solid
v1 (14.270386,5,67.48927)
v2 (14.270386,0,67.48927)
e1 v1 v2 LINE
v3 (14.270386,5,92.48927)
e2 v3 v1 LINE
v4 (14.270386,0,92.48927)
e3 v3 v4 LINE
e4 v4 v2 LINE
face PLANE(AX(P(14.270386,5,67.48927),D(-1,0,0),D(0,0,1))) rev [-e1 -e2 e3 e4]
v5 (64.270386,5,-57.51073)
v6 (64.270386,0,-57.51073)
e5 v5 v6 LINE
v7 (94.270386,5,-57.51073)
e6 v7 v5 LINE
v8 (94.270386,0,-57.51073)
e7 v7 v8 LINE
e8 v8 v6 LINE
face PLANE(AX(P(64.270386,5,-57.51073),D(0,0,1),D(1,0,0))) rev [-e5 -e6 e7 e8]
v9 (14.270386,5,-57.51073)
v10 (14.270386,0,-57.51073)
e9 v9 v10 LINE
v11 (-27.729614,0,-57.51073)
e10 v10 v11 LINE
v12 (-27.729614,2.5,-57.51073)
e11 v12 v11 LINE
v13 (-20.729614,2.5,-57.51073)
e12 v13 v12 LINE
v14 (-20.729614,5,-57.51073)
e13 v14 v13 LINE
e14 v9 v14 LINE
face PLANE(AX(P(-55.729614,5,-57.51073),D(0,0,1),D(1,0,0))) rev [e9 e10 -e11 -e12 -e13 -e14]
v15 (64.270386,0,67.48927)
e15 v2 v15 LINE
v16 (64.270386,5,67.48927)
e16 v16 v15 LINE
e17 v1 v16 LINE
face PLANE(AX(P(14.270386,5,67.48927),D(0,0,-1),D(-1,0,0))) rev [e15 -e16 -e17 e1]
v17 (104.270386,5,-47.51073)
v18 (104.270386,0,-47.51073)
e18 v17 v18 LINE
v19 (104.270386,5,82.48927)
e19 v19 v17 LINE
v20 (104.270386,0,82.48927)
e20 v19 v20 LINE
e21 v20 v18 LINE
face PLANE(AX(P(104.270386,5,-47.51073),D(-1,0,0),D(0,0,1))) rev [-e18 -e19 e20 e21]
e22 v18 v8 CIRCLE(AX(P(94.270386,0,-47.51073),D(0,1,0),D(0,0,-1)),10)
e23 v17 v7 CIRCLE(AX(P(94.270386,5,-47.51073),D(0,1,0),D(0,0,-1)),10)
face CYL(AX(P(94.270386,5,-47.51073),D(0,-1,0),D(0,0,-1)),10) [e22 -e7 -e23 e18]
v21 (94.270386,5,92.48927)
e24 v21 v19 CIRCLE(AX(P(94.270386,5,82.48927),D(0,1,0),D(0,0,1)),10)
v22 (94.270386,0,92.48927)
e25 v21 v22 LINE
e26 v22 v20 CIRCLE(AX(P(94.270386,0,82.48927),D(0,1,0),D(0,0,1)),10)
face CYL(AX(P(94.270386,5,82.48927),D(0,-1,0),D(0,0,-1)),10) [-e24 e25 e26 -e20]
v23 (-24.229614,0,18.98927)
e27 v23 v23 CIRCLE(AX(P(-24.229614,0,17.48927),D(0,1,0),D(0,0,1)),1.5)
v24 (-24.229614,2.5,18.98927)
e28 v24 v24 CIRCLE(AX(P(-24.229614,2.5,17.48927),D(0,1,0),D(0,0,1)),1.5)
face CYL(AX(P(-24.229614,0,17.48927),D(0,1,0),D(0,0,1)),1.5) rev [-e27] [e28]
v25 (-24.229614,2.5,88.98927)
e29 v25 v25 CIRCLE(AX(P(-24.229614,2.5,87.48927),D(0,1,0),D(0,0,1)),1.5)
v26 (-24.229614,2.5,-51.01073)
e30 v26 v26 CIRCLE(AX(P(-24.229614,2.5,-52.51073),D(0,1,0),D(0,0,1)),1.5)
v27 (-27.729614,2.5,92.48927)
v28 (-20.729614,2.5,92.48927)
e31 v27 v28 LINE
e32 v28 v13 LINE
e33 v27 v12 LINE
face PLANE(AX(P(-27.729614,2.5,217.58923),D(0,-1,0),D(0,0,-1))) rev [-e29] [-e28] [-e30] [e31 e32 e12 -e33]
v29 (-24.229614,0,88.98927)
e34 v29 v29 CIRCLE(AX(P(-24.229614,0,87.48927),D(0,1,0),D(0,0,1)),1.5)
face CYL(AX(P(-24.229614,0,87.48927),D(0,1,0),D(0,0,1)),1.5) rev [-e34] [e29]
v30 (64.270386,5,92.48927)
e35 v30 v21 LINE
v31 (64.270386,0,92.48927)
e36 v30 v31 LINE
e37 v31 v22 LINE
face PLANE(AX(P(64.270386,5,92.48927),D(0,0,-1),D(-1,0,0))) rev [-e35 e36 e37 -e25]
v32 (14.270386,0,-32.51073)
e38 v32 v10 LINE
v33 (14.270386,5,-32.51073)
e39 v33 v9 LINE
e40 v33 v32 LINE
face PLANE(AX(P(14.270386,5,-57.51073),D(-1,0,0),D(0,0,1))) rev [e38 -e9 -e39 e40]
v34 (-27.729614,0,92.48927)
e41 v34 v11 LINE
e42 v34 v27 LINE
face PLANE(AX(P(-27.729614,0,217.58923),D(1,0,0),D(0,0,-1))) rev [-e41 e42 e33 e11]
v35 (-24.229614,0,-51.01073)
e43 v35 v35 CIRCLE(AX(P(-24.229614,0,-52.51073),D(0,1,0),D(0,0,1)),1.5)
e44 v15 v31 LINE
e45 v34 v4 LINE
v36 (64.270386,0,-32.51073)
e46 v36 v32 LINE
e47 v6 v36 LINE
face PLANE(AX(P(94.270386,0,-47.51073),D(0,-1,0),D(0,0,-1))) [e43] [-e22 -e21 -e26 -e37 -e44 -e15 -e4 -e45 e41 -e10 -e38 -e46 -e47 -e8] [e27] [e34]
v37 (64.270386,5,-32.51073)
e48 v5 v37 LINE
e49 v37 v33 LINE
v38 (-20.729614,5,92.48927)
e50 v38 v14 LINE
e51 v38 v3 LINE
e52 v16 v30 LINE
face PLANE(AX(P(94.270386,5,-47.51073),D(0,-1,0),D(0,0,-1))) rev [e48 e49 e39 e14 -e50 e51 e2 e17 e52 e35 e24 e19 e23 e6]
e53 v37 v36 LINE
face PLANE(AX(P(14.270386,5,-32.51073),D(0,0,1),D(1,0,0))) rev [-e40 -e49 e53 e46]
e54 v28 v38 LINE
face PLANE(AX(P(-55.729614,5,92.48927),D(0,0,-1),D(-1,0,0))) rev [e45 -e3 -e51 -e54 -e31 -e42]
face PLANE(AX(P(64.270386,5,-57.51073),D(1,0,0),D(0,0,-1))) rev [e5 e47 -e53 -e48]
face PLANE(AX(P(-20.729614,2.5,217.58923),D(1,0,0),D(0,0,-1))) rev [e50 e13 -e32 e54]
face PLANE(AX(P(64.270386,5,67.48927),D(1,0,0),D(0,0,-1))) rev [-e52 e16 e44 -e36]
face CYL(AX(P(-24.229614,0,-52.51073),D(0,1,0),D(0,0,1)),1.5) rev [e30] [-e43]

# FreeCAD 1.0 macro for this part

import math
import FreeCAD as App
import Part
import Sketcher

V = App.Vector
Q = App.Units.Quantity


def add_polygon(sketch, points):
    """Adds a closed chain of lines whose ends are joined by coincident constraints."""
    first, n = sketch.GeometryCount, len(points)
    for a, b in zip(points, points[1:] + points[:1]):
        sketch.addGeometry(Part.LineSegment(App.Vector(*a, 0), App.Vector(*b, 0)), False)
    for i in range(n):
        sketch.addConstraint(Sketcher.Constraint("Coincident", first + i, 2, first + (i + 1) % n, 1))

doc = App.newDocument("Part")
body = doc.addObject("PartDesign::Body", "Body")

# Sketch on XZ plane
sketch1 = doc.addObject("Sketcher::SketchObject", "Sketch")
body.addObject(sketch1)
sketch1.AttachmentSupport = (doc.XZ_Plane, [""])
sketch1.MapMode = "FlatFace"
sketch1.addGeometry(Part.LineSegment(V(94, -58, 0), V(64, -58, 0)), False)
sketch1.addGeometry(Part.LineSegment(V(64, -58, 0), V(64, -33, 0)), False)
sketch1.addGeometry(Part.LineSegment(V(64, -33, 0), V(14, -33, 0)), False)
sketch1.addGeometry(Part.LineSegment(V(14, -33, 0), V(14, -58, 0)), False)
sketch1.addGeometry(Part.LineSegment(V(14, -58, 0), V(-56, -58, 0)), False)
sketch1.addGeometry(Part.LineSegment(V(-56, -58, 0), V(-56, -33, 0)), False)
sketch1.addGeometry(Part.LineSegment(V(-56, -33, 0), V(-106, -33, 0)), False)
sketch1.addGeometry(Part.LineSegment(V(-106, -33, 0), V(-106, -58, 0)), False)
sketch1.addGeometry(Part.LineSegment(V(-106, -58, 0), V(-136, -58, 0)), False)
sketch1.addGeometry(Part.ArcOfCircle(Part.Circle(V(-136, -48, 0), V(0, 0, 1), 10), math.radians(180), math.radians(270)), False)
sketch1.addGeometry(Part.LineSegment(V(-146, -48, 0), V(-146, 82, 0)), False)
sketch1.addGeometry(Part.ArcOfCircle(Part.Circle(V(-136, 82, 0), V(0, 0, 1), 10), math.radians(90), math.radians(180)), False)
sketch1.addGeometry(Part.LineSegment(V(-136, 92, 0), V(-106, 92, 0)), False)
sketch1.addGeometry(Part.LineSegment(V(-106, 92, 0), V(-106, 67, 0)), False)
sketch1.addGeometry(Part.LineSegment(V(-106, 67, 0), V(-56, 67, 0)), False)
sketch1.addGeometry(Part.LineSegment(V(-56, 67, 0), V(-56, 92, 0)), False)
sketch1.addGeometry(Part.LineSegment(V(-56, 92, 0), V(14, 92, 0)), False)
sketch1.addGeometry(Part.LineSegment(V(14, 92, 0), V(14, 67, 0)), False)
sketch1.addGeometry(Part.LineSegment(V(14, 67, 0), V(64, 67, 0)), False)
sketch1.addGeometry(Part.LineSegment(V(64, 67, 0), V(64, 92, 0)), False)
sketch1.addGeometry(Part.LineSegment(V(64, 92, 0), V(94, 92, 0)), False)
sketch1.addGeometry(Part.ArcOfCircle(Part.Circle(V(94, 82, 0), V(0, 0, 1), 10), math.radians(0), math.radians(90)), False)
sketch1.addGeometry(Part.LineSegment(V(104, 82, 0), V(104, -48, 0)), False)
sketch1.addGeometry(Part.ArcOfCircle(Part.Circle(V(94, -48, 0), V(0, 0, 1), 10), math.radians(-90), math.radians(0)), False)
sketch1.addConstraint(Sketcher.Constraint("Coincident", 0, 2, 1, 1))
sketch1.addConstraint(Sketcher.Constraint("Coincident", 1, 2, 2, 1))
sketch1.addConstraint(Sketcher.Constraint("Coincident", 2, 2, 3, 1))
sketch1.addConstraint(Sketcher.Constraint("Coincident", 3, 2, 4, 1))
sketch1.addConstraint(Sketcher.Constraint("Coincident", 4, 2, 5, 1))
sketch1.addConstraint(Sketcher.Constraint("Coincident", 5, 2, 6, 1))
sketch1.addConstraint(Sketcher.Constraint("Coincident", 6, 2, 7, 1))
sketch1.addConstraint(Sketcher.Constraint("Coincident", 7, 2, 8, 1))
sketch1.addConstraint(Sketcher.Constraint("Tangent", 8, 2, 9, 2))
sketch1.addConstraint(Sketcher.Constraint("Tangent", 9, 1, 10, 1))
sketch1.addConstraint(Sketcher.Constraint("Tangent", 10, 2, 11, 2))
sketch1.addConstraint(Sketcher.Constraint("Tangent", 11, 1, 12, 1))
sketch1.addConstraint(Sketcher.Constraint("Coincident", 12, 2, 13, 1))
sketch1.addConstraint(Sketcher.Constraint("Coincident", 13, 2, 14, 1))
sketch1.addConstraint(Sketcher.Constraint("Coincident", 14, 2, 15, 1))
sketch1.addConstraint(Sketcher.Constraint("Coincident", 15, 2, 16, 1))
sketch1.addConstraint(Sketcher.Constraint("Coincident", 16, 2, 17, 1))
sketch1.addConstraint(Sketcher.Constraint("Coincident", 17, 2, 18, 1))
sketch1.addConstraint(Sketcher.Constraint("Coincident", 18, 2, 19, 1))
sketch1.addConstraint(Sketcher.Constraint("Coincident", 19, 2, 20, 1))
sketch1.addConstraint(Sketcher.Constraint("Tangent", 20, 2, 21, 2))
sketch1.addConstraint(Sketcher.Constraint("Tangent", 21, 1, 22, 1))
sketch1.addConstraint(Sketcher.Constraint("Tangent", 22, 2, 23, 2))
sketch1.addConstraint(Sketcher.Constraint("Tangent", 23, 1, 0, 1))
sketch1.addConstraint(Sketcher.Constraint("Horizontal", 0))
sketch1.addConstraint(Sketcher.Constraint("Vertical", 1))
sketch1.addConstraint(Sketcher.Constraint("Horizontal", 2))
sketch1.addConstraint(Sketcher.Constraint("Vertical", 3))
sketch1.addConstraint(Sketcher.Constraint("Horizontal", 4))
sketch1.addConstraint(Sketcher.Constraint("Vertical", 5))
sketch1.addConstraint(Sketcher.Constraint("Horizontal", 6))
sketch1.addConstraint(Sketcher.Constraint("Vertical", 7))
sketch1.addConstraint(Sketcher.Constraint("Horizontal", 8))
sketch1.addConstraint(Sketcher.Constraint("Vertical", 10))
sketch1.addConstraint(Sketcher.Constraint("Horizontal", 12))
sketch1.addConstraint(Sketcher.Constraint("Vertical", 13))
sketch1.addConstraint(Sketcher.Constraint("Horizontal", 14))
sketch1.addConstraint(Sketcher.Constraint("Vertical", 15))
sketch1.addConstraint(Sketcher.Constraint("Horizontal", 16))
sketch1.addConstraint(Sketcher.Constraint("Vertical", 17))
sketch1.addConstraint(Sketcher.Constraint("Horizontal", 18))
sketch1.addConstraint(Sketcher.Constraint("Vertical", 19))
sketch1.addConstraint(Sketcher.Constraint("Horizontal", 20))
sketch1.addConstraint(Sketcher.Constraint("Vertical", 22))
sketch1.addConstraint(Sketcher.Constraint("Equal", 9, 11))
sketch1.addConstraint(Sketcher.Constraint("Equal", 11, 21))
sketch1.addConstraint(Sketcher.Constraint("Equal", 21, 23))
sketch1.addConstraint(Sketcher.Constraint("Horizontal", 11, 3, 21, 3))
sketch1.addConstraint(Sketcher.Constraint("Horizontal", 9, 3, 23, 3))
sketch1.addConstraint(Sketcher.Constraint("Horizontal", 0, 2, 3, 2))
sketch1.addConstraint(Sketcher.Constraint("Horizontal", 2, 2, 5, 2))
sketch1.addConstraint(Sketcher.Constraint("Horizontal", 12, 2, 15, 2))
sketch1.addConstraint(Sketcher.Constraint("Horizontal", 14, 2, 17, 2))
sketch1.addConstraint(Sketcher.Constraint("Vertical", 7, 2, 12, 2))
sketch1.addConstraint(Sketcher.Constraint("Vertical", 5, 2, 14, 2))
sketch1.addConstraint(Sketcher.Constraint("Vertical", 3, 2, 16, 2))
sketch1.addConstraint(Sketcher.Constraint("Vertical", 1, 2, 18, 2))
sketch1.addConstraint(Sketcher.Constraint("Equal", 2, 6))
sketch1.addConstraint(Sketcher.Constraint("Equal", 0, 8))
sketch1.addConstraint(Sketcher.Constraint("Equal", 7, 13))
sketch1.addConstraint(Sketcher.Constraint("Radius", 9, Q("10 mm")))
sketch1.addConstraint(Sketcher.Constraint("DistanceX", 0, 2, 0, 1, Q("30 mm")))
sketch1.addConstraint(Sketcher.Constraint("DistanceX", 2, 2, 2, 1, Q("50 mm")))
sketch1.addConstraint(Sketcher.Constraint("DistanceX", 4, 2, 4, 1, Q("70 mm")))
sketch1.addConstraint(Sketcher.Constraint("DistanceY", 1, 1, 1, 2, Q("25 mm")))
sketch1.addConstraint(Sketcher.Constraint("DistanceY", 10, 1, 10, 2, Q("130 mm")))
sketch1.addConstraint(Sketcher.Constraint("DistanceY", 9, 3, -1, 1, Q("47.51073 mm")))
sketch1.addConstraint(Sketcher.Constraint("DistanceX", 9, 3, -1, 1, Q("135.729614 mm")))
pad1 = doc.addObject("PartDesign::Pad", "Pad")
body.addObject(pad1)
pad1.Profile = sketch1
pad1.Length = 5
pad1.Reversed = True

# Sketch on XY plane
sketch2 = doc.addObject("Sketcher::SketchObject", "Sketch001")
body.addObject(sketch2)
sketch2.AttachmentSupport = (doc.XY_Plane, [""])
sketch2.MapMode = "FlatFace"
sketch2.AttachmentOffset = App.Placement(V(0, 0, -57.51073), App.Rotation())
add_polygon(sketch2, [(-20.7, 5), (-20.7, 2.5), (-27.7, 2.5), (-27.7, 0), (-145.7, 0), (-145.7, 5)])  # lines 0-5
sketch2.addConstraint(Sketcher.Constraint("Vertical", 0))
sketch2.addConstraint(Sketcher.Constraint("Horizontal", 1))
sketch2.addConstraint(Sketcher.Constraint("Vertical", 2))
sketch2.addConstraint(Sketcher.Constraint("Horizontal", 3))
sketch2.addConstraint(Sketcher.Constraint("Vertical", 4))
sketch2.addConstraint(Sketcher.Constraint("Horizontal", 5))
sketch2.addConstraint(Sketcher.Constraint("PointOnObject", 2, 2, -1))
sketch2.addConstraint(Sketcher.Constraint("Equal", 0, 2))
sketch2.addConstraint(Sketcher.Constraint("DistanceX", 1, 2, 1, 1, Q("7 mm")))
sketch2.addConstraint(Sketcher.Constraint("DistanceX", 3, 2, 3, 1, Q("118 mm")))
sketch2.addConstraint(Sketcher.Constraint("DistanceY", 4, 1, 4, 2, Q("5 mm")))
sketch2.addConstraint(Sketcher.Constraint("DistanceX", 0, 2, -1, 1, Q("20.729614 mm")))
pocket1 = doc.addObject("PartDesign::Pocket", "Pocket")
body.addObject(pocket1)
pocket1.Profile = sketch2
pocket1.Length = 150
pocket1.Reversed = True

# Sketch on XZ plane
sketch3 = doc.addObject("Sketcher::SketchObject", "Sketch002")
body.addObject(sketch3)
sketch3.AttachmentSupport = (doc.XZ_Plane, [""])
sketch3.MapMode = "FlatFace"
sketch3.AttachmentOffset = App.Placement(V(0, 0, -2.5), App.Rotation())
sketch3.addGeometry(Part.Circle(V(-24.2, 17.5, 0), V(0, 0, 1), 1.5), False)
sketch3.addGeometry(Part.Circle(V(-24.2, -52.5, 0), V(0, 0, 1), 1.5), False)
sketch3.addGeometry(Part.Circle(V(-24.2, 87.5, 0), V(0, 0, 1), 1.5), False)
sketch3.addConstraint(Sketcher.Constraint("Equal", 0, 1))
sketch3.addConstraint(Sketcher.Constraint("Equal", 1, 2))
sketch3.addConstraint(Sketcher.Constraint("Vertical", 0, 3, 1, 3))
sketch3.addConstraint(Sketcher.Constraint("Vertical", 1, 3, 2, 3))
sketch3.addConstraint(Sketcher.Constraint("Diameter", 0, Q("3 mm")))
sketch3.addConstraint(Sketcher.Constraint("DistanceY", 1, 3, 0, 3, Q("70 mm")))
sketch3.addConstraint(Sketcher.Constraint("DistanceY", 0, 3, 2, 3, Q("70 mm")))
sketch3.addConstraint(Sketcher.Constraint("DistanceY", -1, 1, 0, 3, Q("17.48927 mm")))
sketch3.addConstraint(Sketcher.Constraint("DistanceX", 0, 3, -1, 1, Q("24.229614 mm")))
pocket2 = doc.addObject("PartDesign::Pocket", "Pocket001")
body.addObject(pocket2)
pocket2.Profile = sketch3
pocket2.Type = "ThroughAll"
pocket2.Reversed = True

doc.recompute()
